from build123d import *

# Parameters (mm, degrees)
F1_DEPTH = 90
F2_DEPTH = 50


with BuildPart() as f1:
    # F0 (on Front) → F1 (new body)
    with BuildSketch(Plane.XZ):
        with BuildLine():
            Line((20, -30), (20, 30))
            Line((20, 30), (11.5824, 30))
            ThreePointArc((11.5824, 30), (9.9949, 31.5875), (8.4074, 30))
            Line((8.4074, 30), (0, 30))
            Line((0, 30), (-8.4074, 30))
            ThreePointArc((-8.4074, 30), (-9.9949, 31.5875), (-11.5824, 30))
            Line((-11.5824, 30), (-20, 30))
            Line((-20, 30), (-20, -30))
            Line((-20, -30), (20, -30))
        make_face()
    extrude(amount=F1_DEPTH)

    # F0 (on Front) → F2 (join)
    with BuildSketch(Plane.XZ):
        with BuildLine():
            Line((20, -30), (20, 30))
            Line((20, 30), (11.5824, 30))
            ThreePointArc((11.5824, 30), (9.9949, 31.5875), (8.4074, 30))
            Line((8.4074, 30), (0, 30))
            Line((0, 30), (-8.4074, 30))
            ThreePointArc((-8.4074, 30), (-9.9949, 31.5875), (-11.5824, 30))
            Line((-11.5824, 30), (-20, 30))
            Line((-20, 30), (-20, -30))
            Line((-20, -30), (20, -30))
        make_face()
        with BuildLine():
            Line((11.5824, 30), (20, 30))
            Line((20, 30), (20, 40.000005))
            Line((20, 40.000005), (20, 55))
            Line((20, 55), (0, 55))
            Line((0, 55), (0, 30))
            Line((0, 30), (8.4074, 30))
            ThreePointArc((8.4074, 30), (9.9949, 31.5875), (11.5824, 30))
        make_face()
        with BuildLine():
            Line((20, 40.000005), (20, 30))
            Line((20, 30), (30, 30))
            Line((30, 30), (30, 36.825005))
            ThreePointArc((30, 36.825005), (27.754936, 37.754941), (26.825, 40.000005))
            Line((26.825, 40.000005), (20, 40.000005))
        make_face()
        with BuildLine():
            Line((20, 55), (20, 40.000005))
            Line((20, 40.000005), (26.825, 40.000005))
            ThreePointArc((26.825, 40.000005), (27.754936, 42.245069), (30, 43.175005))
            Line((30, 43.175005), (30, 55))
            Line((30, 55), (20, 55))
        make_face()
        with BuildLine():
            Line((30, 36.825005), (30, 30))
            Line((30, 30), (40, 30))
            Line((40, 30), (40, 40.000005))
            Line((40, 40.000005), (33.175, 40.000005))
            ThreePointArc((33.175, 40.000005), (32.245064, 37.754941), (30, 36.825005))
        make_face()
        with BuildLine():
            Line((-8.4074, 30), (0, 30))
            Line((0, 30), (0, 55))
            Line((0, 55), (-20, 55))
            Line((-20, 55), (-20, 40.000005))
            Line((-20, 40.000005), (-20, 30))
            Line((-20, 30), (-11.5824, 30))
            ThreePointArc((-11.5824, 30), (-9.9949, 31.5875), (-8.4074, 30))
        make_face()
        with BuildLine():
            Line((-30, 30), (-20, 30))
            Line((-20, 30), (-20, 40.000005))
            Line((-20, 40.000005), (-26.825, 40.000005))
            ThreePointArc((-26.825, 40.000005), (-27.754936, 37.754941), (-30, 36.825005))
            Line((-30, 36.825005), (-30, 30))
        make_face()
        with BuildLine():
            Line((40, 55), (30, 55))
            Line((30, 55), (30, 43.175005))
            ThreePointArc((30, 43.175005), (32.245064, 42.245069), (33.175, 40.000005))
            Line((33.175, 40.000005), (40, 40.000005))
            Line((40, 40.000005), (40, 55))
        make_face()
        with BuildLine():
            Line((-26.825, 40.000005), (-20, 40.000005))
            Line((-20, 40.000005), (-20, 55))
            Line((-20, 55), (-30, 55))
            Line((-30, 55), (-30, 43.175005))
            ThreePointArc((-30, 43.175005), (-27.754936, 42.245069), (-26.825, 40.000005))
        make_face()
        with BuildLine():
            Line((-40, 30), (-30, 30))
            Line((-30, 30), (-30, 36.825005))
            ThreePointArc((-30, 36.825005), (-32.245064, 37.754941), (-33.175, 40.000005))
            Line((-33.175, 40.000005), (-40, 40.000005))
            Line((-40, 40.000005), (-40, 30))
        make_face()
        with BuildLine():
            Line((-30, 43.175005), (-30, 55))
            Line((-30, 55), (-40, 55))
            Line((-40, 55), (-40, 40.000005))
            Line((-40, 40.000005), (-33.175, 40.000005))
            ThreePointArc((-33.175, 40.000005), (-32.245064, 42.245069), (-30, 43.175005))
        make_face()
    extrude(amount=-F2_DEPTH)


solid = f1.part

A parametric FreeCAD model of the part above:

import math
import FreeCAD as App
import Part
import Sketcher
Q = App.Units.Quantity

doc = App.newDocument("Part")
body = doc.addObject("PartDesign::Body", "Body")

sketch1 = body.newObject("Sketcher::SketchObject", "Sketch")
sketch1.AttachmentSupport = (doc.getObject("XZ_Plane"), [""])
sketch1.MapMode = "FlatFace"
sketch1.addGeometry(Part.LineSegment(App.Vector(20, -30, 0), App.Vector(20, 30, 0)), False)
sketch1.addGeometry(Part.LineSegment(App.Vector(20, 30, 0), App.Vector(11.5824, 30, 0)), False)
sketch1.addGeometry(Part.ArcOfCircle(Part.Circle(App.Vector(9.9949, 30, 0), App.Vector(0, 0, 1), 1.5875), math.radians(0), math.radians(180)), False)
sketch1.addGeometry(Part.LineSegment(App.Vector(8.4074, 30, 0), App.Vector(-8.4074, 30, 0)), False)
sketch1.addGeometry(Part.ArcOfCircle(Part.Circle(App.Vector(-9.9949, 30, 0), App.Vector(0, 0, 1), 1.5875), math.radians(0), math.radians(180)), False)
sketch1.addGeometry(Part.LineSegment(App.Vector(-11.5824, 30, 0), App.Vector(-20, 30, 0)), False)
sketch1.addGeometry(Part.LineSegment(App.Vector(-20, 30, 0), App.Vector(-20, -30, 0)), False)
sketch1.addGeometry(Part.LineSegment(App.Vector(-20, -30, 0), App.Vector(20, -30, 0)), False)
sketch1.addConstraint(Sketcher.Constraint("Coincident", 0, 2, 1, 1))
sketch1.addConstraint(Sketcher.Constraint("Coincident", 1, 2, 2, 1))
sketch1.addConstraint(Sketcher.Constraint("Coincident", 2, 2, 3, 1))
sketch1.addConstraint(Sketcher.Constraint("Coincident", 3, 2, 4, 1))
sketch1.addConstraint(Sketcher.Constraint("Coincident", 4, 2, 5, 1))
sketch1.addConstraint(Sketcher.Constraint("Coincident", 5, 2, 6, 1))
sketch1.addConstraint(Sketcher.Constraint("Coincident", 6, 2, 7, 1))
sketch1.addConstraint(Sketcher.Constraint("Coincident", 7, 2, 0, 1))
sketch1.addConstraint(Sketcher.Constraint("Vertical", 0))
sketch1.addConstraint(Sketcher.Constraint("Horizontal", 1))
sketch1.addConstraint(Sketcher.Constraint("Horizontal", 3))
sketch1.addConstraint(Sketcher.Constraint("Horizontal", 5))
sketch1.addConstraint(Sketcher.Constraint("Vertical", 6))
sketch1.addConstraint(Sketcher.Constraint("Horizontal", 7))
sketch1.addConstraint(Sketcher.Constraint("Equal", 2, 4))
sketch1.addConstraint(Sketcher.Constraint("Symmetric", 0, 2, 6, 2, -1, 1))
sketch1.addConstraint(Sketcher.Constraint("Symmetric", 2, 3, 4, 3, -2))
sketch1.addConstraint(Sketcher.Constraint("Horizontal", 4, 3, 0, 2))
sketch1.addConstraint(Sketcher.Constraint("Horizontal", 1, 2, 2, 2))
sketch1.addConstraint(Sketcher.Constraint("Horizontal", 3, 2, 4, 2))
sketch1.addConstraint(Sketcher.Constraint("DistanceX", 7, 1, 7, 2, Q("40 mm")))
sketch1.addConstraint(Sketcher.Constraint("DistanceY", 0, 1, 0, 2, Q("60 mm")))
sketch1.addConstraint(Sketcher.Constraint("Radius", 2, Q("1.5875 mm")))
sketch1.addConstraint(Sketcher.Constraint("DistanceX", 1, 2, 1, 1, Q("8.4176 mm")))
pad1 = body.newObject("PartDesign::Pad", "Pad")
pad1.Profile = sketch1
pad1.Length = 90

sketch2 = body.newObject("Sketcher::SketchObject", "Sketch001")
sketch2.AttachmentSupport = (doc.getObject("XZ_Plane"), [""])
sketch2.MapMode = "FlatFace"
sketch2.addGeometry(Part.LineSegment(App.Vector(20, -30, 0), App.Vector(20, 30, 0)), False)
sketch2.addGeometry(Part.LineSegment(App.Vector(20, 30, 0), App.Vector(40, 30, 0)), False)
sketch2.addGeometry(Part.LineSegment(App.Vector(40, 30, 0), App.Vector(40, 55, 0)), False)
sketch2.addGeometry(Part.LineSegment(App.Vector(40, 55, 0), App.Vector(-40, 55, 0)), False)
sketch2.addGeometry(Part.LineSegment(App.Vector(-40, 55, 0), App.Vector(-40, 30, 0)), False)
sketch2.addGeometry(Part.LineSegment(App.Vector(-40, 30, 0), App.Vector(-20, 30, 0)), False)
sketch2.addGeometry(Part.LineSegment(App.Vector(-20, 30, 0), App.Vector(-20, -30, 0)), False)
sketch2.addGeometry(Part.LineSegment(App.Vector(-20, -30, 0), App.Vector(20, -30, 0)), False)
sketch2.addGeometry(Part.ArcOfCircle(Part.Circle(App.Vector(-30, 40.000005, 0), App.Vector(0, 0, 1), 3.175), math.radians(0.000002), math.radians(89.999998)), False)
sketch2.addGeometry(Part.ArcOfCircle(Part.Circle(App.Vector(-30, 40.000005, 0), App.Vector(0, 0, 1), 3.175), math.radians(-89.999998), math.radians(-0.000002)), False)
sketch2.addGeometry(Part.ArcOfCircle(Part.Circle(App.Vector(-30, 40.000005, 0), App.Vector(0, 0, 1), 3.175), math.radians(-179.999998), math.radians(-90.000002)), False)
sketch2.addGeometry(Part.ArcOfCircle(Part.Circle(App.Vector(-30, 40.000005, 0), App.Vector(0, 0, 1), 3.175), math.radians(90.000002), math.radians(179.999998)), False)
sketch2.addGeometry(Part.ArcOfCircle(Part.Circle(App.Vector(30, 40.000005, 0), App.Vector(0, 0, 1), 3.175), math.radians(-89.999998), math.radians(-0.000002)), False)
sketch2.addGeometry(Part.ArcOfCircle(Part.Circle(App.Vector(30, 40.000005, 0), App.Vector(0, 0, 1), 3.175), math.radians(-179.999998), math.radians(-90.000002)), False)
sketch2.addGeometry(Part.ArcOfCircle(Part.Circle(App.Vector(30, 40.000005, 0), App.Vector(0, 0, 1), 3.175), math.radians(90.000002), math.radians(179.999998)), False)
sketch2.addGeometry(Part.ArcOfCircle(Part.Circle(App.Vector(30, 40.000005, 0), App.Vector(0, 0, 1), 3.175), math.radians(0.000002), math.radians(89.999998)), False)
sketch2.addConstraint(Sketcher.Constraint("Coincident", 0, 2, 1, 1))
sketch2.addConstraint(Sketcher.Constraint("Coincident", 1, 2, 2, 1))
sketch2.addConstraint(Sketcher.Constraint("Coincident", 2, 2, 3, 1))
sketch2.addConstraint(Sketcher.Constraint("Coincident", 3, 2, 4, 1))
sketch2.addConstraint(Sketcher.Constraint("Coincident", 4, 2, 5, 1))
sketch2.addConstraint(Sketcher.Constraint("Coincident", 5, 2, 6, 1))
sketch2.addConstraint(Sketcher.Constraint("Coincident", 6, 2, 7, 1))
sketch2.addConstraint(Sketcher.Constraint("Coincident", 7, 2, 0, 1))
sketch2.addConstraint(Sketcher.Constraint("Tangent", 8, 1, 9, 2))
sketch2.addConstraint(Sketcher.Constraint("Tangent", 9, 1, 10, 2))
sketch2.addConstraint(Sketcher.Constraint("Tangent", 10, 1, 11, 2))
sketch2.addConstraint(Sketcher.Constraint("Tangent", 11, 1, 8, 2))
sketch2.addConstraint(Sketcher.Constraint("Tangent", 12, 1, 13, 2))
sketch2.addConstraint(Sketcher.Constraint("Tangent", 13, 1, 14, 2))
sketch2.addConstraint(Sketcher.Constraint("Tangent", 14, 1, 15, 2))
sketch2.addConstraint(Sketcher.Constraint("Tangent", 15, 1, 12, 2))
sketch2.addConstraint(Sketcher.Constraint("Vertical", 0))
sketch2.addConstraint(Sketcher.Constraint("Horizontal", 1))
sketch2.addConstraint(Sketcher.Constraint("Vertical", 2))
sketch2.addConstraint(Sketcher.Constraint("Horizontal", 3))
sketch2.addConstraint(Sketcher.Constraint("Vertical", 4))
sketch2.addConstraint(Sketcher.Constraint("Horizontal", 5))
sketch2.addConstraint(Sketcher.Constraint("Vertical", 6))
sketch2.addConstraint(Sketcher.Constraint("Horizontal", 7))
sketch2.addConstraint(Sketcher.Constraint("Equal", 8, 9))
sketch2.addConstraint(Sketcher.Constraint("Equal", 11, 12))
sketch2.addConstraint(Sketcher.Constraint("Equal", 12, 13))
sketch2.addConstraint(Sketcher.Constraint("Symmetric", 0, 2, 6, 2, -1, 1))
sketch2.addConstraint(Sketcher.Constraint("Symmetric", 8, 3, 12, 3, -2))
sketch2.addConstraint(Sketcher.Constraint("Symmetric", 1, 2, 4, 2, -2))
sketch2.addConstraint(Sketcher.Constraint("Horizontal", 15, 3, 8, 1))
sketch2.addConstraint(Sketcher.Constraint("Horizontal", 8, 1, 10, 1))
sketch2.addConstraint(Sketcher.Constraint("Horizontal", 10, 1, 13, 1))
sketch2.addConstraint(Sketcher.Constraint("Horizontal", 13, 1, 15, 1))
sketch2.addConstraint(Sketcher.Constraint("Vertical", 11, 3, 9, 1))
sketch2.addConstraint(Sketcher.Constraint("Vertical", 9, 1, 11, 1))
sketch2.addConstraint(Sketcher.Constraint("Vertical", 15, 3, 12, 1))
sketch2.addConstraint(Sketcher.Constraint("Vertical", 12, 1, 14, 1))
sketch2.addConstraint(Sketcher.Constraint("DistanceX", 1, 1, 1, 2, Q("20 mm")))
sketch2.addConstraint(Sketcher.Constraint("DistanceX", 3, 2, 3, 1, Q("80 mm")))
sketch2.addConstraint(Sketcher.Constraint("DistanceY", 0, 1, 0, 2, Q("60 mm")))
sketch2.addConstraint(Sketcher.Constraint("DistanceY", 2, 1, 2, 2, Q("25 mm")))
sketch2.addConstraint(Sketcher.Constraint("DistanceX", 8, 3, -1, 1, Q("30 mm")))
sketch2.addConstraint(Sketcher.Constraint("Radius", 8, Q("3.175 mm")))
sketch2.addConstraint(Sketcher.Constraint("DistanceY", -1, 1, 8, 3, Q("40.000005 mm")))
pad2 = body.newObject("PartDesign::Pad", "Pad001")
pad2.Profile = sketch2
pad2.Length = 50
pad2.Reversed = True

doc.recompute()
